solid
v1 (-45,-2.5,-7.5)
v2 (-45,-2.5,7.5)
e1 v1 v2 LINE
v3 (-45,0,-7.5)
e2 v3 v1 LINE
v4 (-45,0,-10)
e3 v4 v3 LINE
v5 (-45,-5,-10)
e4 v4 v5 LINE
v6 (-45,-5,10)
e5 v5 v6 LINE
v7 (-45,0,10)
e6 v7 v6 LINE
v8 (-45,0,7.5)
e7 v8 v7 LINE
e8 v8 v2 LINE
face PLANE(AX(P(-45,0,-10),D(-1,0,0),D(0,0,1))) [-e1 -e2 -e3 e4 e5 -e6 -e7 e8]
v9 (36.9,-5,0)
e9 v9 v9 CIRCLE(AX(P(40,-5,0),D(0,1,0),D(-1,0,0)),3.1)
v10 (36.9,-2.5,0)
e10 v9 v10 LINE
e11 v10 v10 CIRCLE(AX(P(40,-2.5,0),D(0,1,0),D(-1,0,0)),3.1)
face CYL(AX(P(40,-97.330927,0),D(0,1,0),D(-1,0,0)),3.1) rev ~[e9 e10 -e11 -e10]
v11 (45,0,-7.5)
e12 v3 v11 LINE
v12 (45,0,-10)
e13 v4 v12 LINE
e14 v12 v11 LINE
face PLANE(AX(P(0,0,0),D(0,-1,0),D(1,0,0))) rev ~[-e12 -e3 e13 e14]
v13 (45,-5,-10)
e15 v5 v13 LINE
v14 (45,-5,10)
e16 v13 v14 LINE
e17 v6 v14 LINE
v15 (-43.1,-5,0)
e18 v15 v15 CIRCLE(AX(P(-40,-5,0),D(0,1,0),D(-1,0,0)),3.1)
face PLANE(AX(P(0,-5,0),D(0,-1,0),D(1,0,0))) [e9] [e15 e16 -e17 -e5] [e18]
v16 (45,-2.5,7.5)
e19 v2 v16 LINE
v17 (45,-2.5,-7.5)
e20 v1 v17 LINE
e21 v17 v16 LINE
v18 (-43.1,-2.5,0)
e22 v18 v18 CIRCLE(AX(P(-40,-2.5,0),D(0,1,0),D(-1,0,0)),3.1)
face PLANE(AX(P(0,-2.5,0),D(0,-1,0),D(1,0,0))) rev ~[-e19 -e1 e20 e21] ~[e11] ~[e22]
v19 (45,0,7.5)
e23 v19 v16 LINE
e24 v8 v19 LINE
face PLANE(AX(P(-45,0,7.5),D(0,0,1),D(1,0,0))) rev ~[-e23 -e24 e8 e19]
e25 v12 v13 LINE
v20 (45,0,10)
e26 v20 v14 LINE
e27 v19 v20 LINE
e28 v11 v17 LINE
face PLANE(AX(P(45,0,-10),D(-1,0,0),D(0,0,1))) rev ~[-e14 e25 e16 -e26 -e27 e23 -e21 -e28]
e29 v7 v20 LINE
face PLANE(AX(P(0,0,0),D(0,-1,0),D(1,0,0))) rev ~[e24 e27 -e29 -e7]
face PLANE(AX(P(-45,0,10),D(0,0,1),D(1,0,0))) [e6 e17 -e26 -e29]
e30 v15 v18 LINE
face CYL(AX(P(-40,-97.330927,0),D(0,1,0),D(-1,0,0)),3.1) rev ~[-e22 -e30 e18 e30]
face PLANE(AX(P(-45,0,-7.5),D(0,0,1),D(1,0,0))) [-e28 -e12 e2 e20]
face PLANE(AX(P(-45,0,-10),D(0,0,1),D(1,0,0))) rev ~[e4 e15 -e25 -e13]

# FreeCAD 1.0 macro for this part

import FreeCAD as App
import Part
import Sketcher
from FreeCAD import Vector
Q = App.Units.Quantity


def faces_at(feature, points):
    """Names of the faces that lie closest to the given points."""
    faces = feature.Shape.Faces
    near = lambda p: min(range(len(faces)), key=lambda i: faces[i].distToShape(Part.Vertex(*p))[0])
    return sorted({f"Face{near(p) + 1}" for p in points})

doc = App.newDocument("Part")
params = doc.addObject("Spreadsheet::Sheet", "Params")
for row, (alias, value) in enumerate([
    ("sketch1_width", "90 mm"),
    ("sketch1_height", "20 mm"),
    ("pad1_length", "5 mm"),
    ("thickness_wall", "2.5 mm"),
    ("sketch2_diameter", "6.2 mm"),
    ("hole_diameter", "6.2 mm"),
], start=1):
    params.set(f"A{row}", alias)
    params.set(f"B{row}", "=" + value)
    params.setAlias(f"B{row}", alias)

body = doc.addObject("PartDesign::Body", "Body")

# Sketch on XZ plane
sketch1 = body.newObject("Sketcher::SketchObject", "Sketch")
sketch1.AttachmentSupport = (doc.getObject("XZ_Plane"), [""])
sketch1.MapMode = "FlatFace"
sketch1.addGeometry([
    Part.LineSegment(Vector(-45, 10, 0), Vector(-45, -10, 0)),
    Part.LineSegment(Vector(-45, -10, 0), Vector(45, -10, 0)),
    Part.LineSegment(Vector(45, -10, 0), Vector(45, 10, 0)),
    Part.LineSegment(Vector(45, 10, 0), Vector(-45, 10, 0)),
], False)
sketch1.addConstraint([
    Sketcher.Constraint("Coincident", 0, 2, 1, 1),
    Sketcher.Constraint("Coincident", 1, 2, 2, 1),
    Sketcher.Constraint("Coincident", 2, 2, 3, 1),
    Sketcher.Constraint("Coincident", 3, 2, 0, 1),
    Sketcher.Constraint("Vertical", 0),
    Sketcher.Constraint("Horizontal", 1),
    Sketcher.Constraint("Vertical", 2),
    Sketcher.Constraint("Horizontal", 3),
    Sketcher.Constraint("Symmetric", 0, 2, 2, 2, -1, 1),
    Sketcher.Constraint("DistanceX", 1, 1, 1, 2, Q("90 mm")),
    Sketcher.Constraint("DistanceY", 0, 2, 0, 1, Q("20 mm")),
])
sketch1.setExpression("Constraints[9]", "Params.sketch1_width")
sketch1.setExpression("Constraints[10]", "Params.sketch1_height")
pad1 = body.newObject("PartDesign::Pad", "Pad")
pad1.Profile = sketch1
pad1.setExpression("Length", "Params.pad1_length")
doc.recompute()

thickness = body.newObject("PartDesign::Thickness", "Thickness")
thickness.Base = (pad1, faces_at(pad1, [(0, 0, 0), (45, -2.5, 0), (-45, -2.5, 0)]))
thickness.setExpression("Value", "Params.thickness_wall")
thickness.Reversed = True
thickness.Join = "Arc"

# Sketch on XZ plane
sketch2 = body.newObject("Sketcher::SketchObject", "Sketch001")
sketch2.AttachmentSupport = (doc.getObject("XZ_Plane"), [""])
sketch2.MapMode = "FlatFace"
sketch2.AttachmentOffset = App.Placement(Vector(0, 0, 5), App.Rotation())
sketch2.addGeometry([
    Part.Circle(Vector(40, 0, 0), Vector(0, 0, 1), 3.1),
    Part.Circle(Vector(-40, 0, 0), Vector(0, 0, 1), 3.1),
], False)
sketch2.addConstraint([
    Sketcher.Constraint("Equal", 0, 1),
    Sketcher.Constraint("Symmetric", 0, 3, 1, 3, -1, 1),
    Sketcher.Constraint("PointOnObject", 0, 3, -1),
    Sketcher.Constraint("Diameter", 0, Q("6.2 mm")),
    Sketcher.Constraint("DistanceX", -1, 1, 0, 3, Q("40 mm")),
])
sketch2.setExpression("Constraints[3]", "Params.sketch2_diameter")
doc.recompute()
hole = body.newObject("PartDesign::Hole", "Hole")
hole.Profile = sketch2
hole.ThreadType = "None"
hole.setExpression("Diameter", "Params.hole_diameter")
hole.DepthType = "ThroughAll"

doc.recompute()
